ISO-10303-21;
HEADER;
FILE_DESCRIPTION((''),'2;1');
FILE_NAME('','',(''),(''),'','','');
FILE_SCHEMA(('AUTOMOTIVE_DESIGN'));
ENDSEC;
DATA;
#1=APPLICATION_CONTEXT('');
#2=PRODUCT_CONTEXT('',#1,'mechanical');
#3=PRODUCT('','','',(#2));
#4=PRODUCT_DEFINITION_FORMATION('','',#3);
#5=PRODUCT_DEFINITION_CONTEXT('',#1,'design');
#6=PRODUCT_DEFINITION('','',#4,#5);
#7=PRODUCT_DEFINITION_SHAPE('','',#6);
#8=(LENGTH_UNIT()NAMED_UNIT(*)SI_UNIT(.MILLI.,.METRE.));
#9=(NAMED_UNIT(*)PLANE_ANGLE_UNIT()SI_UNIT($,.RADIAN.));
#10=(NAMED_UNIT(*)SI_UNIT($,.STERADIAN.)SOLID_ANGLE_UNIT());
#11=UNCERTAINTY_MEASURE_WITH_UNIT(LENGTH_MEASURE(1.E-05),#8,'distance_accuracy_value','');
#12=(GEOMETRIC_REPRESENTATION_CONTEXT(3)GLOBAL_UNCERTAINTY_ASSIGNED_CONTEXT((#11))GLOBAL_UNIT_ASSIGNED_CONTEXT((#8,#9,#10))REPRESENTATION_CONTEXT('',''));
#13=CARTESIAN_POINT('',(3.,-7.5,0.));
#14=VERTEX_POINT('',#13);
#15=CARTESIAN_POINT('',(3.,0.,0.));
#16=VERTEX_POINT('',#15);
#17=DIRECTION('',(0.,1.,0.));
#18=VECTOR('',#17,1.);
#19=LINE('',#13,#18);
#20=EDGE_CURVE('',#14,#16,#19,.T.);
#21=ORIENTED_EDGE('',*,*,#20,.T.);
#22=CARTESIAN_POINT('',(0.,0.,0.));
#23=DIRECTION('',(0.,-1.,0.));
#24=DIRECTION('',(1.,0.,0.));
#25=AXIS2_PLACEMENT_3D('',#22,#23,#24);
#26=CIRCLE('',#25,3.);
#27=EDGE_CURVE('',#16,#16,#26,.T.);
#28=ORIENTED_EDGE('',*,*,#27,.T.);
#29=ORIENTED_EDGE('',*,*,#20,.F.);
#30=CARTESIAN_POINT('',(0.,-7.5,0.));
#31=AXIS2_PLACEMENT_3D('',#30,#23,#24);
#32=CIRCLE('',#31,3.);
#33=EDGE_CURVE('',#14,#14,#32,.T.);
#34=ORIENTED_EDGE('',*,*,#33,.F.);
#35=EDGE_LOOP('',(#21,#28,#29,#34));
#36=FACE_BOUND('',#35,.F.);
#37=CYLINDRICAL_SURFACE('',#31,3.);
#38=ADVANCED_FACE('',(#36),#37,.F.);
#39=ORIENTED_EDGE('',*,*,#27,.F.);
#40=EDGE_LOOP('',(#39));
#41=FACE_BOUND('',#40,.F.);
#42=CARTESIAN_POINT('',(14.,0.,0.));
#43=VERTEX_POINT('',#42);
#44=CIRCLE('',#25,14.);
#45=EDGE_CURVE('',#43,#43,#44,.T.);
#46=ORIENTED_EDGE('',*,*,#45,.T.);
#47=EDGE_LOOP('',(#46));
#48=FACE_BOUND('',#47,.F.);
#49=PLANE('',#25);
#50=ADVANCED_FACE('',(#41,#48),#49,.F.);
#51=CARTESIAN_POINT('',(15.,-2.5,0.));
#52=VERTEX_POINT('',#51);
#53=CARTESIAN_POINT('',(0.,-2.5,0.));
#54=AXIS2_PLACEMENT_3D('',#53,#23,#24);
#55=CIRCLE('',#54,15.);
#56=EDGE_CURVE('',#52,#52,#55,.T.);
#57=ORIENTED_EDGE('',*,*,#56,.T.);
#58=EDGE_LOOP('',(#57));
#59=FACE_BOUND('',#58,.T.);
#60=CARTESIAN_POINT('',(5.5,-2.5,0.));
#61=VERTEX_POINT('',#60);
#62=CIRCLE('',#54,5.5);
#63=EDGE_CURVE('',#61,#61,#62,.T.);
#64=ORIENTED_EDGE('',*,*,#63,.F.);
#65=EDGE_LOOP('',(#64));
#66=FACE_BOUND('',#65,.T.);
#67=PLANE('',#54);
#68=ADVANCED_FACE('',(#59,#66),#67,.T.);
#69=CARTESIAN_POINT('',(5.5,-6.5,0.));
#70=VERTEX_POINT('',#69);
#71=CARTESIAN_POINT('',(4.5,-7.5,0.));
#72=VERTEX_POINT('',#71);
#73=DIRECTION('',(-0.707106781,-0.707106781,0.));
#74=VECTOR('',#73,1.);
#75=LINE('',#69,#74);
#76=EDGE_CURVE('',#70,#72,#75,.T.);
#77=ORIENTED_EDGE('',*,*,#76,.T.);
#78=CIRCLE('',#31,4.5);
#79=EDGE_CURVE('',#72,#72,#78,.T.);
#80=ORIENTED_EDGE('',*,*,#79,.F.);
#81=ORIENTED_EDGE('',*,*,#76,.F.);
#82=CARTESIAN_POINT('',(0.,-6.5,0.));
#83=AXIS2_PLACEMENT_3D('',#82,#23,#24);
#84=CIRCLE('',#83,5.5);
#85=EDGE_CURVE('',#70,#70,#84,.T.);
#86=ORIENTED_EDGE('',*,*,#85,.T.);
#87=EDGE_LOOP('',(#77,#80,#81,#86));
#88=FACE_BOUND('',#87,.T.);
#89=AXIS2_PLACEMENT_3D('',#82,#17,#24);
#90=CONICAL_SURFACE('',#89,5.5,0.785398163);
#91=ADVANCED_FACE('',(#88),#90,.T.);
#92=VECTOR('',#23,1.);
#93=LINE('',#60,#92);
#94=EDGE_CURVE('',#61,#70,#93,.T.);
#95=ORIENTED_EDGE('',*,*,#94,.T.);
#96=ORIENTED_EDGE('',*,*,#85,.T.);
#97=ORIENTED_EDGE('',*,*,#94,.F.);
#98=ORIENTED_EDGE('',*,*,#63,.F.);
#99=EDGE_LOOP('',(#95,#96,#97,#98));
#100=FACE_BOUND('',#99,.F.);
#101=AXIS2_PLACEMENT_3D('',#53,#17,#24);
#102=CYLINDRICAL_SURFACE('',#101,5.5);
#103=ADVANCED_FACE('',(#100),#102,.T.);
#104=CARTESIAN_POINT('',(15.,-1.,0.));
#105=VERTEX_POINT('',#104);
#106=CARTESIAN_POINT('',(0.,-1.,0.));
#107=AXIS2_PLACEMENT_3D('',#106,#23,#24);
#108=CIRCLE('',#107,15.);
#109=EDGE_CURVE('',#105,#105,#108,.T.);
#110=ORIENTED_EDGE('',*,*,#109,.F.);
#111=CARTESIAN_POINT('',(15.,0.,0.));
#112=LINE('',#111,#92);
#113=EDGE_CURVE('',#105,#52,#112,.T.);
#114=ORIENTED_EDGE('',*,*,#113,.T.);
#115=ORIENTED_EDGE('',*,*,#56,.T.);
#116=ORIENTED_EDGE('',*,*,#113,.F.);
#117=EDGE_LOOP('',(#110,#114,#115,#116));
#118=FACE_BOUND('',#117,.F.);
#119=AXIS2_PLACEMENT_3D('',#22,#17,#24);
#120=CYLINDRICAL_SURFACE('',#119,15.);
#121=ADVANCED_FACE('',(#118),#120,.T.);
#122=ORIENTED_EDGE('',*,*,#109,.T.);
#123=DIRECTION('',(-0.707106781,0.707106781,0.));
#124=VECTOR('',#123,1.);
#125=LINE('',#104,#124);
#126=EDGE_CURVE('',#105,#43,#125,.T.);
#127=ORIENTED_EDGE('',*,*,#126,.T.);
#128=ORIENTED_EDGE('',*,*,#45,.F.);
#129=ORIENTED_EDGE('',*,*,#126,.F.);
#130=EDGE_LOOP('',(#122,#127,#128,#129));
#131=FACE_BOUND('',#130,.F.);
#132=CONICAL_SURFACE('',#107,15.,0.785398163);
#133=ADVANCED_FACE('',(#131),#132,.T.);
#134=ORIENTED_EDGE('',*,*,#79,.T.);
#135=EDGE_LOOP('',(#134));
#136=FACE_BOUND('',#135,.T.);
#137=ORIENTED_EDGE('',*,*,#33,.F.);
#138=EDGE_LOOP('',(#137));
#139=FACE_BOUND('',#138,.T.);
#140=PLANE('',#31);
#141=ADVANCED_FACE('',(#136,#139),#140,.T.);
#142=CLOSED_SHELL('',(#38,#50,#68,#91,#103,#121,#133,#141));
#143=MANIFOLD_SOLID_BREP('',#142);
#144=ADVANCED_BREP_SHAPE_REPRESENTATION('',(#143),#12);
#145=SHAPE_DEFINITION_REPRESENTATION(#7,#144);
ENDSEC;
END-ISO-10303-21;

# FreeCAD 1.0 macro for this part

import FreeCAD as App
import Part
import Sketcher

V = App.Vector


def edges_at(feature, points):
    """Names of the edges that pass closest to the given points."""
    edges = feature.Shape.Edges
    near = lambda p: min(range(len(edges)), key=lambda i: edges[i].distToShape(Part.Vertex(*p))[0])
    return sorted({f"Edge{near(p) + 1}" for p in points})

doc = App.newDocument("Part")
params = doc.addObject("Spreadsheet::Sheet", "Params")
for row, (alias, value) in enumerate([
    ("sketch1_diameter", "30 mm"),
    ("pad1_length", "2.5 mm"),
    ("sketch2_diameter", "11 mm"),
    ("pad2_length", "5 mm"),
    ("sketch3_diameter", "6 mm"),
    ("pocket1_length", "25 mm"),
    ("chamfer_size", "1 mm"),
], start=1):
    params.set(f"A{row}", alias)
    params.set(f"B{row}", "=" + value)
    params.setAlias(f"B{row}", alias)

body = doc.addObject("PartDesign::Body", "Body")

# Sketch on XZ plane
sketch1 = body.newObject("Sketcher::SketchObject", "Sketch")
sketch1.AttachmentSupport = (doc.getObject("XZ_Plane"), [""])
sketch1.MapMode = "FlatFace"
sketch1.addGeometry(Part.Circle(V(0, 0, 0), V(0, 0, 1), 15), False)
sketch1.addConstraint(Sketcher.Constraint("Coincident", 0, 3, -1, 1))
sketch1.addConstraint(Sketcher.Constraint("Diameter", 0, 30.0))
sketch1.setExpression("Constraints[1]", "Params.sketch1_diameter")
pad1 = body.newObject("PartDesign::Pad", "Pad")
pad1.Profile = sketch1
pad1.setExpression("Length", "Params.pad1_length")

# Sketch on XZ plane
sketch2 = body.newObject("Sketcher::SketchObject", "Sketch001")
sketch2.AttachmentSupport = (doc.getObject("XZ_Plane"), [""])
sketch2.MapMode = "FlatFace"
sketch2.AttachmentOffset = App.Placement(V(0, 0, 2.5), App.Rotation())
sketch2.addGeometry(Part.Circle(V(0, 0, 0), V(0, 0, 1), 6), False)
sketch2.addConstraint(Sketcher.Constraint("Coincident", 0, 3, -1, 1))
sketch2.addConstraint(Sketcher.Constraint("Diameter", 0, 11.0))
sketch2.setExpression("Constraints[1]", "Params.sketch2_diameter")
pad2 = body.newObject("PartDesign::Pad", "Pad001")
pad2.Profile = sketch2
pad2.setExpression("Length", "Params.pad2_length")

# Sketch on XZ plane
sketch3 = body.newObject("Sketcher::SketchObject", "Sketch002")
sketch3.AttachmentSupport = (doc.getObject("XZ_Plane"), [""])
sketch3.MapMode = "FlatFace"
sketch3.AttachmentOffset = App.Placement(V(0, 0, 7.5), App.Rotation())
sketch3.addGeometry(Part.Circle(V(0, 0, 0), V(0, 0, 1), 3), False)
sketch3.addConstraint(Sketcher.Constraint("Coincident", 0, 3, -1, 1))
sketch3.addConstraint(Sketcher.Constraint("Diameter", 0, 6.0))
sketch3.setExpression("Constraints[1]", "Params.sketch3_diameter")
pocket1 = body.newObject("PartDesign::Pocket", "Pocket")
pocket1.Profile = sketch3
pocket1.setExpression("Length", "Params.pocket1_length")
doc.recompute()

chamfer = body.newObject("PartDesign::Chamfer", "Chamfer")
chamfer.Base = (pocket1, edges_at(pocket1, [(-5.5, -7.5, 0), (-15, 0, 0)]))
chamfer.setExpression("Size", "Params.chamfer_size")

doc.recompute()
